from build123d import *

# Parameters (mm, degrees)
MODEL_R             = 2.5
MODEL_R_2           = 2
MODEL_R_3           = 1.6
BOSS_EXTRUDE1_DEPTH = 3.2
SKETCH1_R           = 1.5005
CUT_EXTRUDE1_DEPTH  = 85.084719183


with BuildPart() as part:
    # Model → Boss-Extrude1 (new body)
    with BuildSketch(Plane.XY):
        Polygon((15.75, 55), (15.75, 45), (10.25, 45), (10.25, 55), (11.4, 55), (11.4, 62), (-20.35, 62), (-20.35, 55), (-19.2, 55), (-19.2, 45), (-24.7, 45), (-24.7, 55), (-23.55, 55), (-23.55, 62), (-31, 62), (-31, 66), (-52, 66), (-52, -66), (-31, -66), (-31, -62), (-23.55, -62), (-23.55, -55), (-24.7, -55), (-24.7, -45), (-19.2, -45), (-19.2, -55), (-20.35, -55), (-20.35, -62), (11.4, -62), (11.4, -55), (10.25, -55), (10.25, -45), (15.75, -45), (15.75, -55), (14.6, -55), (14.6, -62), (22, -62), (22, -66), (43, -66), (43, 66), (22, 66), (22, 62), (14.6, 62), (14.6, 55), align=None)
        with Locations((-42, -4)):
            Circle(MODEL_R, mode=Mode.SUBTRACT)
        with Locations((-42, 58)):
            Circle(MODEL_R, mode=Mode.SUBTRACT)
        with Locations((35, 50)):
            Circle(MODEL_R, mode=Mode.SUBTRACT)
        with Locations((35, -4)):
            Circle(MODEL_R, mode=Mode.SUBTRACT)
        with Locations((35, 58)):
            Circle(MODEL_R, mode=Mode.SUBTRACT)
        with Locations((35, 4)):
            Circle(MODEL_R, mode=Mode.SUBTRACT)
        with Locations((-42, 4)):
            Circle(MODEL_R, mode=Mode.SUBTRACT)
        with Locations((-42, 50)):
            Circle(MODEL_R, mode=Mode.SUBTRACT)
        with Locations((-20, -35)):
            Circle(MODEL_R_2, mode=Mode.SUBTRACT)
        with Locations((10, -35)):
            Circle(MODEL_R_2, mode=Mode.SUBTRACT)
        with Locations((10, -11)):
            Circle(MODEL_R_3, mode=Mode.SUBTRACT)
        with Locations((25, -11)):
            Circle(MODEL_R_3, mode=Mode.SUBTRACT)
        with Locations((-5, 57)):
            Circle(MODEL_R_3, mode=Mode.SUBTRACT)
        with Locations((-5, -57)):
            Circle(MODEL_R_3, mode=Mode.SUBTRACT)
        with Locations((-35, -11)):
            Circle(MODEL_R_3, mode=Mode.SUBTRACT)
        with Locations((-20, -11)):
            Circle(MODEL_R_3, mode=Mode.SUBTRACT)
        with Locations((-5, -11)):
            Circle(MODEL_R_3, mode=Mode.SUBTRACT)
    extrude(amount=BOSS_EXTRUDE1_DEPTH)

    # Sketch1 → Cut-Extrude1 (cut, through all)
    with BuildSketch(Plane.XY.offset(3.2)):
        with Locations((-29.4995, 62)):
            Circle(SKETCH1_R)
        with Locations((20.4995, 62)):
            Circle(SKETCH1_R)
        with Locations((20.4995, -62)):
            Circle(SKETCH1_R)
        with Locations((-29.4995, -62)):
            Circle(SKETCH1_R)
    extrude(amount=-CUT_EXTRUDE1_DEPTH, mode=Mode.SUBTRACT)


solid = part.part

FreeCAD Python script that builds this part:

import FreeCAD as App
import Part
import Sketcher

V = App.Vector
Q = App.Units.Quantity

doc = App.newDocument("Part")
body = doc.addObject("PartDesign::Body", "Body")

# Sketch on XY plane
sketch1 = body.newObject("Sketcher::SketchObject", "Sketch")
sketch1.AttachmentSupport = (doc.getObject("XY_Plane"), [""])
sketch1.MapMode = "FlatFace"
sketch1.addGeometry(Part.LineSegment(V(15.75, 55, 0), V(15.75, 45, 0)), False)
sketch1.addGeometry(Part.LineSegment(V(15.75, 45, 0), V(10.25, 45, 0)), False)
sketch1.addGeometry(Part.LineSegment(V(10.25, 45, 0), V(10.25, 55, 0)), False)
sketch1.addGeometry(Part.LineSegment(V(10.25, 55, 0), V(11.4, 55, 0)), False)
sketch1.addGeometry(Part.LineSegment(V(11.4, 55, 0), V(11.4, 62, 0)), False)
sketch1.addGeometry(Part.LineSegment(V(11.4, 62, 0), V(-20.35, 62, 0)), False)
sketch1.addGeometry(Part.LineSegment(V(-20.35, 62, 0), V(-20.35, 55, 0)), False)
sketch1.addGeometry(Part.LineSegment(V(-20.35, 55, 0), V(-19.2, 55, 0)), False)
sketch1.addGeometry(Part.LineSegment(V(-19.2, 55, 0), V(-19.2, 45, 0)), False)
sketch1.addGeometry(Part.LineSegment(V(-19.2, 45, 0), V(-24.7, 45, 0)), False)
sketch1.addGeometry(Part.LineSegment(V(-24.7, 45, 0), V(-24.7, 55, 0)), False)
sketch1.addGeometry(Part.LineSegment(V(-24.7, 55, 0), V(-23.55, 55, 0)), False)
sketch1.addGeometry(Part.LineSegment(V(-23.55, 55, 0), V(-23.55, 62, 0)), False)
sketch1.addGeometry(Part.LineSegment(V(-23.55, 62, 0), V(-31, 62, 0)), False)
sketch1.addGeometry(Part.LineSegment(V(-31, 62, 0), V(-31, 66, 0)), False)
sketch1.addGeometry(Part.LineSegment(V(-31, 66, 0), V(-52, 66, 0)), False)
sketch1.addGeometry(Part.LineSegment(V(-52, 66, 0), V(-52, -66, 0)), False)
sketch1.addGeometry(Part.LineSegment(V(-52, -66, 0), V(-31, -66, 0)), False)
sketch1.addGeometry(Part.LineSegment(V(-31, -66, 0), V(-31, -62, 0)), False)
sketch1.addGeometry(Part.LineSegment(V(-31, -62, 0), V(-23.55, -62, 0)), False)
sketch1.addGeometry(Part.LineSegment(V(-23.55, -62, 0), V(-23.55, -55, 0)), False)
sketch1.addGeometry(Part.LineSegment(V(-23.55, -55, 0), V(-24.7, -55, 0)), False)
sketch1.addGeometry(Part.LineSegment(V(-24.7, -55, 0), V(-24.7, -45, 0)), False)
sketch1.addGeometry(Part.LineSegment(V(-24.7, -45, 0), V(-19.2, -45, 0)), False)
sketch1.addGeometry(Part.LineSegment(V(-19.2, -45, 0), V(-19.2, -55, 0)), False)
sketch1.addGeometry(Part.LineSegment(V(-19.2, -55, 0), V(-20.35, -55, 0)), False)
sketch1.addGeometry(Part.LineSegment(V(-20.35, -55, 0), V(-20.35, -62, 0)), False)
sketch1.addGeometry(Part.LineSegment(V(-20.35, -62, 0), V(11.4, -62, 0)), False)
sketch1.addGeometry(Part.LineSegment(V(11.4, -62, 0), V(11.4, -55, 0)), False)
sketch1.addGeometry(Part.LineSegment(V(11.4, -55, 0), V(10.25, -55, 0)), False)
sketch1.addGeometry(Part.LineSegment(V(10.25, -55, 0), V(10.25, -45, 0)), False)
sketch1.addGeometry(Part.LineSegment(V(10.25, -45, 0), V(15.75, -45, 0)), False)
sketch1.addGeometry(Part.LineSegment(V(15.75, -45, 0), V(15.75, -55, 0)), False)
sketch1.addGeometry(Part.LineSegment(V(15.75, -55, 0), V(14.6, -55, 0)), False)
sketch1.addGeometry(Part.LineSegment(V(14.6, -55, 0), V(14.6, -62, 0)), False)
sketch1.addGeometry(Part.LineSegment(V(14.6, -62, 0), V(22, -62, 0)), False)
sketch1.addGeometry(Part.LineSegment(V(22, -62, 0), V(22, -66, 0)), False)
sketch1.addGeometry(Part.LineSegment(V(22, -66, 0), V(43, -66, 0)), False)
sketch1.addGeometry(Part.LineSegment(V(43, -66, 0), V(43, 66, 0)), False)
sketch1.addGeometry(Part.LineSegment(V(43, 66, 0), V(22, 66, 0)), False)
sketch1.addGeometry(Part.LineSegment(V(22, 66, 0), V(22, 62, 0)), False)
sketch1.addGeometry(Part.LineSegment(V(22, 62, 0), V(14.6, 62, 0)), False)
sketch1.addGeometry(Part.LineSegment(V(14.6, 62, 0), V(14.6, 55, 0)), False)
sketch1.addGeometry(Part.LineSegment(V(14.6, 55, 0), V(15.75, 55, 0)), False)
sketch1.addGeometry(Part.Circle(V(-5, -57, 0), V(0, 0, 1), 1.6), False)
sketch1.addGeometry(Part.Circle(V(-20, -35, 0), V(0, 0, 1), 2), False)
sketch1.addGeometry(Part.Circle(V(-35, -11, 0), V(0, 0, 1), 1.6), False)
sketch1.addGeometry(Part.Circle(V(-42, -4, 0), V(0, 0, 1), 2.5), False)
sketch1.addGeometry(Part.Circle(V(-20, -11, 0), V(0, 0, 1), 1.6), False)
sketch1.addGeometry(Part.Circle(V(-5, -11, 0), V(0, 0, 1), 1.6), False)
sketch1.addGeometry(Part.Circle(V(10, -35, 0), V(0, 0, 1), 2), False)
sketch1.addGeometry(Part.Circle(V(10, -11, 0), V(0, 0, 1), 1.6), False)
sketch1.addGeometry(Part.Circle(V(25, -11, 0), V(0, 0, 1), 1.6), False)
sketch1.addGeometry(Part.Circle(V(35, -4, 0), V(0, 0, 1), 2.5), False)
sketch1.addGeometry(Part.Circle(V(-42, 4, 0), V(0, 0, 1), 2.5), False)
sketch1.addGeometry(Part.Circle(V(-42, 50, 0), V(0, 0, 1), 2.5), False)
sketch1.addGeometry(Part.Circle(V(-42, 58, 0), V(0, 0, 1), 2.5), False)
sketch1.addGeometry(Part.Circle(V(-5, 57, 0), V(0, 0, 1), 1.6), False)
sketch1.addGeometry(Part.Circle(V(35, 4, 0), V(0, 0, 1), 2.5), False)
sketch1.addGeometry(Part.Circle(V(35, 50, 0), V(0, 0, 1), 2.5), False)
sketch1.addGeometry(Part.Circle(V(35, 58, 0), V(0, 0, 1), 2.5), False)
sketch1.addConstraint(Sketcher.Constraint("Coincident", 0, 2, 1, 1))
sketch1.addConstraint(Sketcher.Constraint("Coincident", 1, 2, 2, 1))
sketch1.addConstraint(Sketcher.Constraint("Coincident", 2, 2, 3, 1))
sketch1.addConstraint(Sketcher.Constraint("Coincident", 3, 2, 4, 1))
sketch1.addConstraint(Sketcher.Constraint("Coincident", 4, 2, 5, 1))
sketch1.addConstraint(Sketcher.Constraint("Coincident", 5, 2, 6, 1))
sketch1.addConstraint(Sketcher.Constraint("Coincident", 6, 2, 7, 1))
sketch1.addConstraint(Sketcher.Constraint("Coincident", 7, 2, 8, 1))
sketch1.addConstraint(Sketcher.Constraint("Coincident", 8, 2, 9, 1))
sketch1.addConstraint(Sketcher.Constraint("Coincident", 9, 2, 10, 1))
sketch1.addConstraint(Sketcher.Constraint("Coincident", 10, 2, 11, 1))
sketch1.addConstraint(Sketcher.Constraint("Coincident", 11, 2, 12, 1))
sketch1.addConstraint(Sketcher.Constraint("Coincident", 12, 2, 13, 1))
sketch1.addConstraint(Sketcher.Constraint("Coincident", 13, 2, 14, 1))
sketch1.addConstraint(Sketcher.Constraint("Coincident", 14, 2, 15, 1))
sketch1.addConstraint(Sketcher.Constraint("Coincident", 15, 2, 16, 1))
sketch1.addConstraint(Sketcher.Constraint("Coincident", 16, 2, 17, 1))
sketch1.addConstraint(Sketcher.Constraint("Coincident", 17, 2, 18, 1))
sketch1.addConstraint(Sketcher.Constraint("Coincident", 18, 2, 19, 1))
sketch1.addConstraint(Sketcher.Constraint("Coincident", 19, 2, 20, 1))
sketch1.addConstraint(Sketcher.Constraint("Coincident", 20, 2, 21, 1))
sketch1.addConstraint(Sketcher.Constraint("Coincident", 21, 2, 22, 1))
sketch1.addConstraint(Sketcher.Constraint("Coincident", 22, 2, 23, 1))
sketch1.addConstraint(Sketcher.Constraint("Coincident", 23, 2, 24, 1))
sketch1.addConstraint(Sketcher.Constraint("Coincident", 24, 2, 25, 1))
sketch1.addConstraint(Sketcher.Constraint("Coincident", 25, 2, 26, 1))
sketch1.addConstraint(Sketcher.Constraint("Coincident", 26, 2, 27, 1))
sketch1.addConstraint(Sketcher.Constraint("Coincident", 27, 2, 28, 1))
sketch1.addConstraint(Sketcher.Constraint("Coincident", 28, 2, 29, 1))
sketch1.addConstraint(Sketcher.Constraint("Coincident", 29, 2, 30, 1))
sketch1.addConstraint(Sketcher.Constraint("Coincident", 30, 2, 31, 1))
sketch1.addConstraint(Sketcher.Constraint("Coincident", 31, 2, 32, 1))
sketch1.addConstraint(Sketcher.Constraint("Coincident", 32, 2, 33, 1))
sketch1.addConstraint(Sketcher.Constraint("Coincident", 33, 2, 34, 1))
sketch1.addConstraint(Sketcher.Constraint("Coincident", 34, 2, 35, 1))
sketch1.addConstraint(Sketcher.Constraint("Coincident", 35, 2, 36, 1))
sketch1.addConstraint(Sketcher.Constraint("Coincident", 36, 2, 37, 1))
sketch1.addConstraint(Sketcher.Constraint("Coincident", 37, 2, 38, 1))
sketch1.addConstraint(Sketcher.Constraint("Coincident", 38, 2, 39, 1))
sketch1.addConstraint(Sketcher.Constraint("Coincident", 39, 2, 40, 1))
sketch1.addConstraint(Sketcher.Constraint("Coincident", 40, 2, 41, 1))
sketch1.addConstraint(Sketcher.Constraint("Coincident", 41, 2, 42, 1))
sketch1.addConstraint(Sketcher.Constraint("Coincident", 42, 2, 43, 1))
sketch1.addConstraint(Sketcher.Constraint("Coincident", 43, 2, 0, 1))
sketch1.addConstraint(Sketcher.Constraint("Vertical", 0))
sketch1.addConstraint(Sketcher.Constraint("Horizontal", 1))
sketch1.addConstraint(Sketcher.Constraint("Vertical", 2))
sketch1.addConstraint(Sketcher.Constraint("Horizontal", 3))
sketch1.addConstraint(Sketcher.Constraint("Vertical", 4))
sketch1.addConstraint(Sketcher.Constraint("Horizontal", 5))
sketch1.addConstraint(Sketcher.Constraint("Vertical", 6))
sketch1.addConstraint(Sketcher.Constraint("Horizontal", 7))
sketch1.addConstraint(Sketcher.Constraint("Vertical", 8))
sketch1.addConstraint(Sketcher.Constraint("Horizontal", 9))
sketch1.addConstraint(Sketcher.Constraint("Vertical", 10))
sketch1.addConstraint(Sketcher.Constraint("Horizontal", 11))
sketch1.addConstraint(Sketcher.Constraint("Vertical", 12))
sketch1.addConstraint(Sketcher.Constraint("Horizontal", 13))
sketch1.addConstraint(Sketcher.Constraint("Vertical", 14))
sketch1.addConstraint(Sketcher.Constraint("Horizontal", 15))
sketch1.addConstraint(Sketcher.Constraint("Vertical", 16))
sketch1.addConstraint(Sketcher.Constraint("Horizontal", 17))
sketch1.addConstraint(Sketcher.Constraint("Vertical", 18))
sketch1.addConstraint(Sketcher.Constraint("Horizontal", 19))
sketch1.addConstraint(Sketcher.Constraint("Vertical", 20))
sketch1.addConstraint(Sketcher.Constraint("Horizontal", 21))
sketch1.addConstraint(Sketcher.Constraint("Vertical", 22))
sketch1.addConstraint(Sketcher.Constraint("Horizontal", 23))
sketch1.addConstraint(Sketcher.Constraint("Vertical", 24))
sketch1.addConstraint(Sketcher.Constraint("Horizontal", 25))
sketch1.addConstraint(Sketcher.Constraint("Vertical", 26))
sketch1.addConstraint(Sketcher.Constraint("Horizontal", 27))
sketch1.addConstraint(Sketcher.Constraint("Vertical", 28))
sketch1.addConstraint(Sketcher.Constraint("Horizontal", 29))
sketch1.addConstraint(Sketcher.Constraint("Vertical", 30))
sketch1.addConstraint(Sketcher.Constraint("Horizontal", 31))
sketch1.addConstraint(Sketcher.Constraint("Vertical", 32))
sketch1.addConstraint(Sketcher.Constraint("Horizontal", 33))
sketch1.addConstraint(Sketcher.Constraint("Vertical", 34))
sketch1.addConstraint(Sketcher.Constraint("Horizontal", 35))
sketch1.addConstraint(Sketcher.Constraint("Vertical", 36))
sketch1.addConstraint(Sketcher.Constraint("Horizontal", 37))
sketch1.addConstraint(Sketcher.Constraint("Vertical", 38))
sketch1.addConstraint(Sketcher.Constraint("Horizontal", 39))
sketch1.addConstraint(Sketcher.Constraint("Vertical", 40))
sketch1.addConstraint(Sketcher.Constraint("Horizontal", 41))
sketch1.addConstraint(Sketcher.Constraint("Vertical", 42))
sketch1.addConstraint(Sketcher.Constraint("Horizontal", 43))
sketch1.addConstraint(Sketcher.Constraint("Equal", 44, 46))
sketch1.addConstraint(Sketcher.Constraint("Equal", 46, 48))
sketch1.addConstraint(Sketcher.Constraint("Equal", 48, 49))
sketch1.addConstraint(Sketcher.Constraint("Equal", 45, 50))
sketch1.addConstraint(Sketcher.Constraint("Equal", 49, 51))
sketch1.addConstraint(Sketcher.Constraint("Equal", 51, 52))
sketch1.addConstraint(Sketcher.Constraint("Equal", 47, 53))
sketch1.addConstraint(Sketcher.Constraint("Equal", 53, 54))
sketch1.addConstraint(Sketcher.Constraint("Equal", 54, 55))
sketch1.addConstraint(Sketcher.Constraint("Equal", 55, 56))
sketch1.addConstraint(Sketcher.Constraint("Equal", 52, 57))
sketch1.addConstraint(Sketcher.Constraint("Equal", 56, 58))
sketch1.addConstraint(Sketcher.Constraint("Equal", 58, 59))
sketch1.addConstraint(Sketcher.Constraint("Equal", 59, 60))
sketch1.addConstraint(Sketcher.Constraint("Symmetric", 47, 3, 54, 3, -1))
sketch1.addConstraint(Sketcher.Constraint("Symmetric", 44, 3, 57, 3, -1))
sketch1.addConstraint(Sketcher.Constraint("Symmetric", 53, 3, 58, 3, -1))
sketch1.addConstraint(Sketcher.Constraint("Symmetric", 14, 2, 17, 2, -1))
sketch1.addConstraint(Sketcher.Constraint("Symmetric", 12, 2, 19, 2, -1))
sketch1.addConstraint(Sketcher.Constraint("Symmetric", 10, 2, 21, 2, -1))
sketch1.addConstraint(Sketcher.Constraint("Symmetric", 8, 2, 23, 2, -1))
sketch1.addConstraint(Sketcher.Constraint("Symmetric", 6, 2, 25, 2, -1))
sketch1.addConstraint(Sketcher.Constraint("Symmetric", 4, 2, 27, 2, -1))
sketch1.addConstraint(Sketcher.Constraint("Symmetric", 2, 2, 29, 2, -1))
sketch1.addConstraint(Sketcher.Constraint("Symmetric", 0, 2, 31, 2, -1))
sketch1.addConstraint(Sketcher.Constraint("Symmetric", 36, 2, 39, 2, -1))
sketch1.addConstraint(Sketcher.Constraint("Symmetric", 34, 2, 41, 2, -1))
sketch1.addConstraint(Sketcher.Constraint("Horizontal", 46, 3, 48, 3))
sketch1.addConstraint(Sketcher.Constraint("Horizontal", 48, 3, 49, 3))
sketch1.addConstraint(Sketcher.Constraint("Horizontal", 45, 3, 50, 3))
sketch1.addConstraint(Sketcher.Constraint("Horizontal", 49, 3, 51, 3))
sketch1.addConstraint(Sketcher.Constraint("Horizontal", 51, 3, 52, 3))
sketch1.addConstraint(Sketcher.Constraint("Horizontal", 47, 3, 53, 3))
sketch1.addConstraint(Sketcher.Constraint("Horizontal", 55, 3, 59, 3))
sketch1.addConstraint(Sketcher.Constraint("Horizontal", 56, 3, 60, 3))
sketch1.addConstraint(Sketcher.Constraint("Horizontal", 3, 2, 6, 2))
sketch1.addConstraint(Sketcher.Constraint("Horizontal", 1, 2, 8, 2))
sketch1.addConstraint(Sketcher.Constraint("Horizontal", 7, 2, 10, 2))
sketch1.addConstraint(Sketcher.Constraint("Horizontal", 5, 2, 12, 2))
sketch1.addConstraint(Sketcher.Constraint("Horizontal", 29, 2, 32, 2))
sketch1.addConstraint(Sketcher.Constraint("Horizontal", 27, 2, 34, 2))
sketch1.addConstraint(Sketcher.Constraint("Horizontal", 17, 2, 36, 2))
sketch1.addConstraint(Sketcher.Constraint("Horizontal", 11, 2, 42, 2))
sketch1.addConstraint(Sketcher.Constraint("Vertical", 45, 3, 48, 3))
sketch1.addConstraint(Sketcher.Constraint("Vertical", 44, 3, 49, 3))
sketch1.addConstraint(Sketcher.Constraint("Vertical", 50, 3, 51, 3))
sketch1.addConstraint(Sketcher.Constraint("Vertical", 54, 3, 55, 3))
sketch1.addConstraint(Sketcher.Constraint("Vertical", 55, 3, 56, 3))
sketch1.addConstraint(Sketcher.Constraint("Vertical", 58, 3, 59, 3))
sketch1.addConstraint(Sketcher.Constraint("Vertical", 59, 3, 60, 3))
sketch1.addConstraint(Sketcher.Constraint("Equal", 3, 7))
sketch1.addConstraint(Sketcher.Constraint("Equal", 1, 9))
sketch1.addConstraint(Sketcher.Constraint("Equal", 7, 11))
sketch1.addConstraint(Sketcher.Constraint("Equal", 29, 33))
sketch1.addConstraint(Sketcher.Constraint("Equal", 17, 37))
sketch1.addConstraint(Sketcher.Constraint("Diameter", 45, Q("4 mm")))
sketch1.addConstraint(Sketcher.Constraint("Diameter", 47, Q("5 mm")))
sketch1.addConstraint(Sketcher.Constraint("Diameter", 44, Q("3.2 mm")))
sketch1.addConstraint(Sketcher.Constraint("DistanceX", 15, 2, 15, 1, Q("21 mm")))
sketch1.addConstraint(Sketcher.Constraint("DistanceY", 0, 2, 0, 1, Q("10 mm")))
sketch1.addConstraint(Sketcher.Constraint("DistanceY", 4, 1, 4, 2, Q("7 mm")))
sketch1.addConstraint(Sketcher.Constraint("DistanceY", 14, 1, 14, 2, Q("4 mm")))
sketch1.addConstraint(Sketcher.Constraint("DistanceY", 16, 2, 16, 1, Q("132 mm")))
sketch1.addConstraint(Sketcher.Constraint("DistanceX", 1, 2, 1, 1, Q("5.5 mm")))
sketch1.addConstraint(Sketcher.Constraint("DistanceX", 35, 1, 35, 2, Q("7.4 mm")))
sketch1.addConstraint(Sketcher.Constraint("DistanceX", 44, 3, -1, 1, Q("5 mm")))
sketch1.addConstraint(Sketcher.Constraint("DistanceY", 44, 3, -1, 1, Q("57 mm")))
sketch1.addConstraint(Sketcher.Constraint("DistanceX", 45, 3, -1, 1, Q("20 mm")))
sketch1.addConstraint(Sketcher.Constraint("DistanceY", 45, 3, -1, 1, Q("35 mm")))
sketch1.addConstraint(Sketcher.Constraint("DistanceX", 46, 3, -1, 1, Q("35 mm")))
sketch1.addConstraint(Sketcher.Constraint("DistanceY", 46, 3, -1, 1, Q("11 mm")))
sketch1.addConstraint(Sketcher.Constraint("DistanceX", 47, 3, -1, 1, Q("42 mm")))
sketch1.addConstraint(Sketcher.Constraint("DistanceY", 47, 3, -1, 1, Q("4 mm")))
sketch1.addConstraint(Sketcher.Constraint("DistanceX", -1, 1, 50, 3, Q("10 mm")))
sketch1.addConstraint(Sketcher.Constraint("DistanceX", -1, 1, 52, 3, Q("25 mm")))
sketch1.addConstraint(Sketcher.Constraint("DistanceX", -1, 1, 53, 3, Q("35 mm")))
sketch1.addConstraint(Sketcher.Constraint("DistanceY", -1, 1, 55, 3, Q("50 mm")))
sketch1.addConstraint(Sketcher.Constraint("DistanceY", -1, 1, 56, 3, Q("58 mm")))
sketch1.addConstraint(Sketcher.Constraint("DistanceX", 13, 2, -1, 1, Q("31 mm")))
sketch1.addConstraint(Sketcher.Constraint("DistanceX", -1, 1, 35, 2, Q("22 mm")))
sketch1.addConstraint(Sketcher.Constraint("DistanceX", 3, 1, 3, 2, Q("1.15 mm")))
sketch1.addConstraint(Sketcher.Constraint("DistanceX", 5, 2, 5, 1, Q("31.75 mm")))
pad1 = body.newObject("PartDesign::Pad", "Pad")
pad1.Profile = sketch1
pad1.Length = 3.2

# Sketch on XY plane
sketch2 = body.newObject("Sketcher::SketchObject", "Sketch001")
sketch2.AttachmentSupport = (doc.getObject("XY_Plane"), [""])
sketch2.MapMode = "FlatFace"
sketch2.AttachmentOffset = App.Placement(V(0, 0, 3.2), App.Rotation())
sketch2.addGeometry(Part.Circle(V(-29.4995, 62, 0), V(0, 0, 1), 1.5005), False)
sketch2.addGeometry(Part.Circle(V(20.4995, 62, 0), V(0, 0, 1), 1.5005), False)
sketch2.addGeometry(Part.Circle(V(20.4995, -62, 0), V(0, 0, 1), 1.5005), False)
sketch2.addGeometry(Part.Circle(V(-29.4995, -62, 0), V(0, 0, 1), 1.5005), False)
sketch2.addConstraint(Sketcher.Constraint("Equal", 0, 1))
sketch2.addConstraint(Sketcher.Constraint("Equal", 1, 2))
sketch2.addConstraint(Sketcher.Constraint("Equal", 2, 3))
sketch2.addConstraint(Sketcher.Constraint("Symmetric", 1, 3, 2, 3, -1))
sketch2.addConstraint(Sketcher.Constraint("Symmetric", 0, 3, 3, 3, -1))
sketch2.addConstraint(Sketcher.Constraint("Horizontal", 0, 3, 1, 3))
sketch2.addConstraint(Sketcher.Constraint("Diameter", 0, Q("3.001 mm")))
sketch2.addConstraint(Sketcher.Constraint("DistanceY", -1, 1, 0, 3, Q("62 mm")))
sketch2.addConstraint(Sketcher.Constraint("DistanceX", 0, 3, 1, 3, Q("49.999 mm")))
sketch2.addConstraint(Sketcher.Constraint("DistanceX", 0, 3, -1, 1, Q("29.4995 mm")))
pocket1 = body.newObject("PartDesign::Pocket", "Pocket")
pocket1.Profile = sketch2
pocket1.Type = "ThroughAll"

doc.recompute()
